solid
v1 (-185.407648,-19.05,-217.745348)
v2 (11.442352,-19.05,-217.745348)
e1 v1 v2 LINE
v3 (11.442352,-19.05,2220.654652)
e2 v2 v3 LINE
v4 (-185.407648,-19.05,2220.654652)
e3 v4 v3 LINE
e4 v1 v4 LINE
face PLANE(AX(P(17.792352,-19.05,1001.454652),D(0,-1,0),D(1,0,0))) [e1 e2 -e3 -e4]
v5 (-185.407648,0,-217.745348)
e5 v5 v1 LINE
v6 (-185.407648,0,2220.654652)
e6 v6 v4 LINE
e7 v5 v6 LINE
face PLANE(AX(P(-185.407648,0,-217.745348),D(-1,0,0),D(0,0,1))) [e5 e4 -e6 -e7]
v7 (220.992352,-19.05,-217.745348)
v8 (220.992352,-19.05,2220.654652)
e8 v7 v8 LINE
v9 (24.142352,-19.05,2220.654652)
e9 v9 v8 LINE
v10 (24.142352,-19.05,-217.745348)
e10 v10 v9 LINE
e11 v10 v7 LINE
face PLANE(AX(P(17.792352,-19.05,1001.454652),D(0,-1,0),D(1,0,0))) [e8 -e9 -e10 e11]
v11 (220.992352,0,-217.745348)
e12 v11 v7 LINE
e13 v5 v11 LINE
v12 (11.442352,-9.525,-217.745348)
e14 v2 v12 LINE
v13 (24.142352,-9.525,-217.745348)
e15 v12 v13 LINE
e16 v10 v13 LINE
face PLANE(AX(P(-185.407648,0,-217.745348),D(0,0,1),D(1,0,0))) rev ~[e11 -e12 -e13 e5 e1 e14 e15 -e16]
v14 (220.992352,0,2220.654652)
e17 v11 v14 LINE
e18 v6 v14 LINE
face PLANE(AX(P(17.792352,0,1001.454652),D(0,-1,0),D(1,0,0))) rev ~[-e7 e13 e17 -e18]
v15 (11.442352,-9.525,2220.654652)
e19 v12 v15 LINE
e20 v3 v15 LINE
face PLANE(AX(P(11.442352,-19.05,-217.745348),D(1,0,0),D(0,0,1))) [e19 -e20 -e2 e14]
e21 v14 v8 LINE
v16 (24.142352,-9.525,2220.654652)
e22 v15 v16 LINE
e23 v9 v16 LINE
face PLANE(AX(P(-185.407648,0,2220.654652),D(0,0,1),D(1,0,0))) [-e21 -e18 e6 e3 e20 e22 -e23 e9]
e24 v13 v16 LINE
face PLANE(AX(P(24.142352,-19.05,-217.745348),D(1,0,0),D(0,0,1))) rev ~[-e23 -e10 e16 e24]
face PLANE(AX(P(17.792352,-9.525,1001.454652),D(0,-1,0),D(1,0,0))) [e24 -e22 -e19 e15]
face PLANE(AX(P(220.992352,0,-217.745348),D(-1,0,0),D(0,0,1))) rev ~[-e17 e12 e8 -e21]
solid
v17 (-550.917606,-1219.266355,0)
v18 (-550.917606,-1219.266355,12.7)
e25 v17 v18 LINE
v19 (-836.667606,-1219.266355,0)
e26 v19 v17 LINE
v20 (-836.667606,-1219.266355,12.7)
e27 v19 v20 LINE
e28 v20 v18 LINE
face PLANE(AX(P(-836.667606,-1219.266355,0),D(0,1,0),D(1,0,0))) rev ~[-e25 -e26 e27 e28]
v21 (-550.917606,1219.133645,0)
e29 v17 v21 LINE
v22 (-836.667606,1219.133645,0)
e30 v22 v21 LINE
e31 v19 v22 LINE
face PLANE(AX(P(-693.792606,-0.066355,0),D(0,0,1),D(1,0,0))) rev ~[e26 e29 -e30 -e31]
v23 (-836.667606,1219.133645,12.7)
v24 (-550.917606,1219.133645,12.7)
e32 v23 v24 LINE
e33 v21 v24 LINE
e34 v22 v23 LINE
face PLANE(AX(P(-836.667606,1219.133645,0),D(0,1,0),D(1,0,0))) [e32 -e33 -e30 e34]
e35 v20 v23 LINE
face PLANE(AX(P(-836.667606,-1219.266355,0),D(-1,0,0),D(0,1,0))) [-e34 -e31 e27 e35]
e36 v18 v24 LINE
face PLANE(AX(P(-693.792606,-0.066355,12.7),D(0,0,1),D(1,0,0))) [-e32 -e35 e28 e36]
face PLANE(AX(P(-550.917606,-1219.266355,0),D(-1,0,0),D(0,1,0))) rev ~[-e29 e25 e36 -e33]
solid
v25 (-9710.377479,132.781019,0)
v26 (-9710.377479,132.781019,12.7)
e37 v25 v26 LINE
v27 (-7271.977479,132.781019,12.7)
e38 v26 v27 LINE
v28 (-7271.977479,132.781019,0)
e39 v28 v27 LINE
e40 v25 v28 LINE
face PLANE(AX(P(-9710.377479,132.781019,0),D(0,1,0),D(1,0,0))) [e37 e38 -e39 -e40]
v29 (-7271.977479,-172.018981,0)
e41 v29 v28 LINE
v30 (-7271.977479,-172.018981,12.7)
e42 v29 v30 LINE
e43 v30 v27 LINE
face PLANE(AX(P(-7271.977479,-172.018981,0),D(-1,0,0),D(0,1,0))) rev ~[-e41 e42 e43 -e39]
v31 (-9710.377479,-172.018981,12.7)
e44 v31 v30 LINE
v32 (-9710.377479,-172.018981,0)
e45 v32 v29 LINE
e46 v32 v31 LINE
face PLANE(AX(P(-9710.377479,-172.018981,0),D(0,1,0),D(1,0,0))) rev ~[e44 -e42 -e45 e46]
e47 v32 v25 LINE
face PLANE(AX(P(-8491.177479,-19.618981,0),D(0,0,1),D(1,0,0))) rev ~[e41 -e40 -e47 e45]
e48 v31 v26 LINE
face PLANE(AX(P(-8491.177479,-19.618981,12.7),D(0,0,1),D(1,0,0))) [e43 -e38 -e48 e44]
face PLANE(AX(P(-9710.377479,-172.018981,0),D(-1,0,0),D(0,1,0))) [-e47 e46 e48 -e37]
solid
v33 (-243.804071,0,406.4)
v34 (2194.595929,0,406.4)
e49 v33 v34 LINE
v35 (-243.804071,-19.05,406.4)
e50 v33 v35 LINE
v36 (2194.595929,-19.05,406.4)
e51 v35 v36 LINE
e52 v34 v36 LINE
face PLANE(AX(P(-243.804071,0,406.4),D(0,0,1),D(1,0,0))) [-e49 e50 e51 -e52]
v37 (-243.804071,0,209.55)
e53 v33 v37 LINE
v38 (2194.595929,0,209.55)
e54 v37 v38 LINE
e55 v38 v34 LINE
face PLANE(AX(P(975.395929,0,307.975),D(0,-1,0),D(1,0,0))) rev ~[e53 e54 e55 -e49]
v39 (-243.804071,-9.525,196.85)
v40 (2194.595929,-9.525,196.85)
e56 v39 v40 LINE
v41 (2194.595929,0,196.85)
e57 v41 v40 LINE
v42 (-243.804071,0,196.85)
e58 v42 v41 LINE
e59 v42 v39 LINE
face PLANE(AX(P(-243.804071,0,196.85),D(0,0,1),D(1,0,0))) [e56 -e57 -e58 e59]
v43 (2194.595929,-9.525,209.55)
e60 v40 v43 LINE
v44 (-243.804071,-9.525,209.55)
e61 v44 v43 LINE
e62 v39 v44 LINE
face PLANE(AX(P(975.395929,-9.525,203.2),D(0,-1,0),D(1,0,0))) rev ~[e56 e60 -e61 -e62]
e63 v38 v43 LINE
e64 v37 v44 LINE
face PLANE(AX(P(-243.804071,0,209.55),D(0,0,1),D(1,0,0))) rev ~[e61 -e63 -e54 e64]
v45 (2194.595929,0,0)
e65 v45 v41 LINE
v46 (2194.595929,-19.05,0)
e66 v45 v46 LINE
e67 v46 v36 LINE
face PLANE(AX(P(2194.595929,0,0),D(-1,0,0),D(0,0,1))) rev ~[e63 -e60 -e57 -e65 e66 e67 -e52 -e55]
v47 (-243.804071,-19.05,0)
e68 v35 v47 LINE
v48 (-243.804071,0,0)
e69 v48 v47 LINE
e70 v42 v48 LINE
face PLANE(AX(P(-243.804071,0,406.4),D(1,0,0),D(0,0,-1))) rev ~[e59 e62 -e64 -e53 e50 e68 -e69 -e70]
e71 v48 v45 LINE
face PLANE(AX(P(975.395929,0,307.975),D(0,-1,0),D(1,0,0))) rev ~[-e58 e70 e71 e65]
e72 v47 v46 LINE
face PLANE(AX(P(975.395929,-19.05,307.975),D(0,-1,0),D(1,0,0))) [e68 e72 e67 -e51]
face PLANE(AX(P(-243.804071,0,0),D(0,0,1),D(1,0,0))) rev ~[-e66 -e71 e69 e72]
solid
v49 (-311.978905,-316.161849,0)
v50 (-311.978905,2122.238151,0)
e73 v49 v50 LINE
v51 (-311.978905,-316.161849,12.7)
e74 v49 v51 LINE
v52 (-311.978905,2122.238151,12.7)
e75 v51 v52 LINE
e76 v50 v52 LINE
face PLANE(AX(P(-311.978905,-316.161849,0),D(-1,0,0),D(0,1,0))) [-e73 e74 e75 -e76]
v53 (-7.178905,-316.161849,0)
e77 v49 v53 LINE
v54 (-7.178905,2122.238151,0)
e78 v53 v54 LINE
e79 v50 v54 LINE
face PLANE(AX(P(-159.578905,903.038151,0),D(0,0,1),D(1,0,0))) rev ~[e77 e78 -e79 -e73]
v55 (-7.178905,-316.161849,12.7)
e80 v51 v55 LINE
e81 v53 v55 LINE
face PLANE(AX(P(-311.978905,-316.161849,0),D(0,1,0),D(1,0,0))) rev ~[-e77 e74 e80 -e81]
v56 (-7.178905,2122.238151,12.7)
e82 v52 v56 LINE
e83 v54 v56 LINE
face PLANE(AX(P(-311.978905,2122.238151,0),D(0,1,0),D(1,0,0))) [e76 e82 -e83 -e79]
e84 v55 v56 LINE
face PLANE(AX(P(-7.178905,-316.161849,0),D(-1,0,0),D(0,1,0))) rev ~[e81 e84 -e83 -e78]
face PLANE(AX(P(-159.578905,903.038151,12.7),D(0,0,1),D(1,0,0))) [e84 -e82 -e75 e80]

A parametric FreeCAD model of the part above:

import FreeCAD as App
import Part
import Sketcher
from FreeCAD import Vector
Q = App.Units.Quantity

doc = App.newDocument("Part")
body = doc.addObject("PartDesign::Body", "Body")

# Sketch on XY plane
sketch1 = body.newObject("Sketcher::SketchObject", "Sketch")
sketch1.AttachmentSupport = (doc.getObject("XY_Plane"), [""])
sketch1.MapMode = "FlatFace"
sketch1.addGeometry([
    Part.LineSegment(Vector(-312, 2122, 0), Vector(-312, -316, 0)),
    Part.LineSegment(Vector(-312, -316, 0), Vector(-7, -316, 0)),
    Part.LineSegment(Vector(-7, -316, 0), Vector(-7, 2122, 0)),
    Part.LineSegment(Vector(-7, 2122, 0), Vector(-312, 2122, 0)),
], False)
sketch1.addConstraint([
    Sketcher.Constraint("Coincident", 0, 2, 1, 1),
    Sketcher.Constraint("Coincident", 1, 2, 2, 1),
    Sketcher.Constraint("Coincident", 2, 2, 3, 1),
    Sketcher.Constraint("Coincident", 3, 2, 0, 1),
    Sketcher.Constraint("Vertical", 0),
    Sketcher.Constraint("Horizontal", 1),
    Sketcher.Constraint("Vertical", 2),
    Sketcher.Constraint("Horizontal", 3),
    Sketcher.Constraint("DistanceX", 1, 1, 1, 2, Q("12 in")),
    Sketcher.Constraint("DistanceY", 0, 2, 0, 1, Q("96 in")),
    Sketcher.Constraint("DistanceY", 0, 2, -1, 1, Q("316.161849 mm")),
    Sketcher.Constraint("DistanceX", 0, 2, -1, 1, Q("311.978905 mm")),
])
pad1 = body.newObject("PartDesign::Pad", "Pad")
pad1.Profile = sketch1
pad1.Length = Q("0.5 in")
body2 = doc.addObject("PartDesign::Body", "Body001")

# Sketch on XY plane
sketch2 = body2.newObject("Sketcher::SketchObject", "Sketch001")
sketch2.AttachmentSupport = (doc.getObject("XY_Plane001"), [""])
sketch2.MapMode = "FlatFace"
sketch2.addGeometry([
    Part.LineSegment(Vector(-9710, 133, 0), Vector(-9710, -172, 0)),
    Part.LineSegment(Vector(-9710, -172, 0), Vector(-7272, -172, 0)),
    Part.LineSegment(Vector(-7272, -172, 0), Vector(-7272, 133, 0)),
    Part.LineSegment(Vector(-7272, 133, 0), Vector(-9710, 133, 0)),
], False)
sketch2.addConstraint([
    Sketcher.Constraint("Coincident", 0, 2, 1, 1),
    Sketcher.Constraint("Coincident", 1, 2, 2, 1),
    Sketcher.Constraint("Coincident", 2, 2, 3, 1),
    Sketcher.Constraint("Coincident", 3, 2, 0, 1),
    Sketcher.Constraint("Vertical", 0),
    Sketcher.Constraint("Horizontal", 1),
    Sketcher.Constraint("Vertical", 2),
    Sketcher.Constraint("Horizontal", 3),
    Sketcher.Constraint("DistanceX", 1, 1, 1, 2, Q("96 in")),
    Sketcher.Constraint("DistanceY", 0, 2, 0, 1, Q("12 in")),
    Sketcher.Constraint("DistanceX", 0, 2, -1, 1, Q("9710.377479 mm")),
    Sketcher.Constraint("DistanceY", 0, 2, -1, 1, Q("172.018981 mm")),
])
pad2 = body2.newObject("PartDesign::Pad", "Pad001")
pad2.Profile = sketch2
pad2.Length = Q("0.5 in")
body3 = doc.addObject("PartDesign::Body", "Body002")

# Sketch on XZ plane
sketch3 = body3.newObject("Sketcher::SketchObject", "Sketch002")
sketch3.AttachmentSupport = (doc.getObject("XZ_Plane002"), [""])
sketch3.MapMode = "FlatFace"
sketch3.addGeometry([
    Part.LineSegment(Vector(-185, 2221, 0), Vector(-185, -218, 0)),
    Part.LineSegment(Vector(-185, -218, 0), Vector(221, -218, 0)),
    Part.LineSegment(Vector(221, -218, 0), Vector(221, 2221, 0)),
    Part.LineSegment(Vector(221, 2221, 0), Vector(-185, 2221, 0)),
], False)
sketch3.addConstraint([
    Sketcher.Constraint("Coincident", 0, 2, 1, 1),
    Sketcher.Constraint("Coincident", 1, 2, 2, 1),
    Sketcher.Constraint("Coincident", 2, 2, 3, 1),
    Sketcher.Constraint("Coincident", 3, 2, 0, 1),
    Sketcher.Constraint("Vertical", 0),
    Sketcher.Constraint("Horizontal", 1),
    Sketcher.Constraint("Vertical", 2),
    Sketcher.Constraint("Horizontal", 3),
    Sketcher.Constraint("DistanceX", 1, 1, 1, 2, Q("16 in")),
    Sketcher.Constraint("DistanceY", 0, 2, 0, 1, Q("96 in")),
    Sketcher.Constraint("DistanceX", 0, 2, -1, 1, Q("185.407648 mm")),
    Sketcher.Constraint("DistanceY", 0, 2, -1, 1, Q("217.745348 mm")),
])
pad3 = body3.newObject("PartDesign::Pad", "Pad002")
pad3.Profile = sketch3
pad3.Length = Q("0.75 in")

# Sketch on XZ plane
sketch4 = body3.newObject("Sketcher::SketchObject", "Sketch003")
sketch4.AttachmentSupport = (doc.getObject("XZ_Plane002"), [""])
sketch4.MapMode = "FlatFace"
sketch4.AttachmentOffset = App.Placement(Vector(0, 0, 0.75 * 25.4), App.Rotation())
sketch4.addGeometry([
    Part.LineSegment(Vector(11, 2221, 0), Vector(11, -218, 0)),
    Part.LineSegment(Vector(11, -218, 0), Vector(24, -218, 0)),
    Part.LineSegment(Vector(24, -218, 0), Vector(24, 2221, 0)),
    Part.LineSegment(Vector(24, 2221, 0), Vector(11, 2221, 0)),
], False)
sketch4.addConstraint([
    Sketcher.Constraint("Coincident", 0, 2, 1, 1),
    Sketcher.Constraint("Coincident", 1, 2, 2, 1),
    Sketcher.Constraint("Coincident", 2, 2, 3, 1),
    Sketcher.Constraint("Coincident", 3, 2, 0, 1),
    Sketcher.Constraint("Vertical", 0),
    Sketcher.Constraint("Horizontal", 1),
    Sketcher.Constraint("Vertical", 2),
    Sketcher.Constraint("Horizontal", 3),
    Sketcher.Constraint("DistanceY", 0, 2, 0, 1, Q("96 in")),
    Sketcher.Constraint("DistanceX", 1, 1, 1, 2, Q("0.5 in")),
    Sketcher.Constraint("DistanceX", -1, 1, 0, 2, Q("11.442352 mm")),
    Sketcher.Constraint("DistanceY", 0, 2, -1, 1, Q("217.745348 mm")),
])
pocket1 = body3.newObject("PartDesign::Pocket", "Pocket")
pocket1.Profile = sketch4
pocket1.Length = Q("0.375 in")
body4 = doc.addObject("PartDesign::Body", "Body003")

# Sketch on XZ plane
sketch5 = body4.newObject("Sketcher::SketchObject", "Sketch004")
sketch5.AttachmentSupport = (doc.getObject("XZ_Plane003"), [""])
sketch5.MapMode = "FlatFace"
sketch5.addGeometry([
    Part.LineSegment(Vector(-244, 406, 0), Vector(-244, 0, 0)),
    Part.LineSegment(Vector(-244, 0, 0), Vector(2195, 0, 0)),
    Part.LineSegment(Vector(2195, 0, 0), Vector(2195, 406, 0)),
    Part.LineSegment(Vector(2195, 406, 0), Vector(-244, 406, 0)),
], False)
sketch5.addConstraint([
    Sketcher.Constraint("Coincident", 0, 2, 1, 1),
    Sketcher.Constraint("Coincident", 1, 2, 2, 1),
    Sketcher.Constraint("Coincident", 2, 2, 3, 1),
    Sketcher.Constraint("Coincident", 3, 2, 0, 1),
    Sketcher.Constraint("Vertical", 0),
    Sketcher.Constraint("Horizontal", 1),
    Sketcher.Constraint("Vertical", 2),
    Sketcher.Constraint("Horizontal", 3),
    Sketcher.Constraint("PointOnObject", 0, 2, -1),
    Sketcher.Constraint("DistanceX", 1, 1, 1, 2, Q("96 in")),
    Sketcher.Constraint("DistanceY", 0, 2, 0, 1, Q("16 in")),
    Sketcher.Constraint("DistanceX", 0, 2, -1, 1, Q("243.804071 mm")),
])
pad4 = body4.newObject("PartDesign::Pad", "Pad003")
pad4.Profile = sketch5
pad4.Length = Q("0.75 in")

# Sketch on XZ plane
sketch6 = body4.newObject("Sketcher::SketchObject", "Sketch005")
sketch6.AttachmentSupport = (doc.getObject("XZ_Plane003"), [""])
sketch6.MapMode = "FlatFace"
sketch6.addGeometry([
    Part.LineSegment(Vector(-244, 210, 0), Vector(-244, 197, 0)),
    Part.LineSegment(Vector(-244, 197, 0), Vector(2195, 197, 0)),
    Part.LineSegment(Vector(2195, 197, 0), Vector(2195, 210, 0)),
    Part.LineSegment(Vector(2195, 210, 0), Vector(-244, 210, 0)),
], False)
sketch6.addConstraint([
    Sketcher.Constraint("Coincident", 0, 2, 1, 1),
    Sketcher.Constraint("Coincident", 1, 2, 2, 1),
    Sketcher.Constraint("Coincident", 2, 2, 3, 1),
    Sketcher.Constraint("Coincident", 3, 2, 0, 1),
    Sketcher.Constraint("Vertical", 0),
    Sketcher.Constraint("Horizontal", 1),
    Sketcher.Constraint("Vertical", 2),
    Sketcher.Constraint("Horizontal", 3),
    Sketcher.Constraint("DistanceX", 1, 1, 1, 2, Q("96 in")),
    Sketcher.Constraint("DistanceY", 0, 2, 0, 1, Q("0.5 in")),
    Sketcher.Constraint("DistanceY", -1, 1, 0, 2, Q("7.75 in")),
    Sketcher.Constraint("DistanceX", 0, 2, -1, 1, Q("243.804071 mm")),
])
pocket2 = body4.newObject("PartDesign::Pocket", "Pocket001")
pocket2.Profile = sketch6
pocket2.Length = Q("0.375 in")
pocket2.Reversed = True
body5 = doc.addObject("PartDesign::Body", "Body004")

# Sketch on XY plane
sketch7 = body5.newObject("Sketcher::SketchObject", "Sketch006")
sketch7.AttachmentSupport = (doc.getObject("XY_Plane004"), [""])
sketch7.MapMode = "FlatFace"
sketch7.addGeometry([
    Part.LineSegment(Vector(-837, 1219, 0), Vector(-837, -1219, 0)),
    Part.LineSegment(Vector(-837, -1219, 0), Vector(-551, -1219, 0)),
    Part.LineSegment(Vector(-551, -1219, 0), Vector(-551, 1219, 0)),
    Part.LineSegment(Vector(-551, 1219, 0), Vector(-837, 1219, 0)),
], False)
sketch7.addConstraint([
    Sketcher.Constraint("Coincident", 0, 2, 1, 1),
    Sketcher.Constraint("Coincident", 1, 2, 2, 1),
    Sketcher.Constraint("Coincident", 2, 2, 3, 1),
    Sketcher.Constraint("Coincident", 3, 2, 0, 1),
    Sketcher.Constraint("Vertical", 0),
    Sketcher.Constraint("Horizontal", 1),
    Sketcher.Constraint("Vertical", 2),
    Sketcher.Constraint("Horizontal", 3),
    Sketcher.Constraint("DistanceY", 0, 2, 0, 1, Q("96 in")),
    Sketcher.Constraint("DistanceX", 1, 1, 1, 2, Q("11.25 in")),
    Sketcher.Constraint("DistanceX", 0, 2, -1, 1, Q("836.667606 mm")),
    Sketcher.Constraint("DistanceY", 0, 2, -1, 1, Q("1219.266355 mm")),
])
pad5 = body5.newObject("PartDesign::Pad", "Pad004")
pad5.Profile = sketch7
pad5.Length = Q("0.5 in")

doc.recompute()
